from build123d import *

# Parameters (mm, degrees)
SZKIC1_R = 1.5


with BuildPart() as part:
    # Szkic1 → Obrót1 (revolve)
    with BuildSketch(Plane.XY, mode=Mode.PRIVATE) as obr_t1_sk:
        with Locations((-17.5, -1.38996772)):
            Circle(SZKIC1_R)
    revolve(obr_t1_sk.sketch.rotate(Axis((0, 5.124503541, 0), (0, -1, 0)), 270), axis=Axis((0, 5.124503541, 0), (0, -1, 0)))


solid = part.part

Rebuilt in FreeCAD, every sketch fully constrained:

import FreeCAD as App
import Part
import Sketcher

doc = App.newDocument("Part")
body = doc.addObject("PartDesign::Body", "Body")

sketch1 = body.newObject("Sketcher::SketchObject", "Sketch")
sketch1.AttachmentSupport = (doc.getObject("XY_Plane"), [""])
sketch1.MapMode = "FlatFace"
sketch1.addGeometry(Part.Circle(App.Vector(-17.5, -1.4, 0), App.Vector(0, 0, 1), 1.5), False)
sketch1.addConstraint(Sketcher.Constraint("Diameter", 0, 3.0))
sketch1.addConstraint(Sketcher.Constraint("DistanceX", 0, 3, -1, 1, 17.5))
sketch1.addConstraint(Sketcher.Constraint("DistanceY", 0, 3, -1, 1, 1.389968))
revolution = body.newObject("PartDesign::Revolution", "Revolution")
revolution.Profile = sketch1
revolution.ReferenceAxis = (sketch1, ["V_Axis"])
revolution.Angle = 360

doc.recompute()
